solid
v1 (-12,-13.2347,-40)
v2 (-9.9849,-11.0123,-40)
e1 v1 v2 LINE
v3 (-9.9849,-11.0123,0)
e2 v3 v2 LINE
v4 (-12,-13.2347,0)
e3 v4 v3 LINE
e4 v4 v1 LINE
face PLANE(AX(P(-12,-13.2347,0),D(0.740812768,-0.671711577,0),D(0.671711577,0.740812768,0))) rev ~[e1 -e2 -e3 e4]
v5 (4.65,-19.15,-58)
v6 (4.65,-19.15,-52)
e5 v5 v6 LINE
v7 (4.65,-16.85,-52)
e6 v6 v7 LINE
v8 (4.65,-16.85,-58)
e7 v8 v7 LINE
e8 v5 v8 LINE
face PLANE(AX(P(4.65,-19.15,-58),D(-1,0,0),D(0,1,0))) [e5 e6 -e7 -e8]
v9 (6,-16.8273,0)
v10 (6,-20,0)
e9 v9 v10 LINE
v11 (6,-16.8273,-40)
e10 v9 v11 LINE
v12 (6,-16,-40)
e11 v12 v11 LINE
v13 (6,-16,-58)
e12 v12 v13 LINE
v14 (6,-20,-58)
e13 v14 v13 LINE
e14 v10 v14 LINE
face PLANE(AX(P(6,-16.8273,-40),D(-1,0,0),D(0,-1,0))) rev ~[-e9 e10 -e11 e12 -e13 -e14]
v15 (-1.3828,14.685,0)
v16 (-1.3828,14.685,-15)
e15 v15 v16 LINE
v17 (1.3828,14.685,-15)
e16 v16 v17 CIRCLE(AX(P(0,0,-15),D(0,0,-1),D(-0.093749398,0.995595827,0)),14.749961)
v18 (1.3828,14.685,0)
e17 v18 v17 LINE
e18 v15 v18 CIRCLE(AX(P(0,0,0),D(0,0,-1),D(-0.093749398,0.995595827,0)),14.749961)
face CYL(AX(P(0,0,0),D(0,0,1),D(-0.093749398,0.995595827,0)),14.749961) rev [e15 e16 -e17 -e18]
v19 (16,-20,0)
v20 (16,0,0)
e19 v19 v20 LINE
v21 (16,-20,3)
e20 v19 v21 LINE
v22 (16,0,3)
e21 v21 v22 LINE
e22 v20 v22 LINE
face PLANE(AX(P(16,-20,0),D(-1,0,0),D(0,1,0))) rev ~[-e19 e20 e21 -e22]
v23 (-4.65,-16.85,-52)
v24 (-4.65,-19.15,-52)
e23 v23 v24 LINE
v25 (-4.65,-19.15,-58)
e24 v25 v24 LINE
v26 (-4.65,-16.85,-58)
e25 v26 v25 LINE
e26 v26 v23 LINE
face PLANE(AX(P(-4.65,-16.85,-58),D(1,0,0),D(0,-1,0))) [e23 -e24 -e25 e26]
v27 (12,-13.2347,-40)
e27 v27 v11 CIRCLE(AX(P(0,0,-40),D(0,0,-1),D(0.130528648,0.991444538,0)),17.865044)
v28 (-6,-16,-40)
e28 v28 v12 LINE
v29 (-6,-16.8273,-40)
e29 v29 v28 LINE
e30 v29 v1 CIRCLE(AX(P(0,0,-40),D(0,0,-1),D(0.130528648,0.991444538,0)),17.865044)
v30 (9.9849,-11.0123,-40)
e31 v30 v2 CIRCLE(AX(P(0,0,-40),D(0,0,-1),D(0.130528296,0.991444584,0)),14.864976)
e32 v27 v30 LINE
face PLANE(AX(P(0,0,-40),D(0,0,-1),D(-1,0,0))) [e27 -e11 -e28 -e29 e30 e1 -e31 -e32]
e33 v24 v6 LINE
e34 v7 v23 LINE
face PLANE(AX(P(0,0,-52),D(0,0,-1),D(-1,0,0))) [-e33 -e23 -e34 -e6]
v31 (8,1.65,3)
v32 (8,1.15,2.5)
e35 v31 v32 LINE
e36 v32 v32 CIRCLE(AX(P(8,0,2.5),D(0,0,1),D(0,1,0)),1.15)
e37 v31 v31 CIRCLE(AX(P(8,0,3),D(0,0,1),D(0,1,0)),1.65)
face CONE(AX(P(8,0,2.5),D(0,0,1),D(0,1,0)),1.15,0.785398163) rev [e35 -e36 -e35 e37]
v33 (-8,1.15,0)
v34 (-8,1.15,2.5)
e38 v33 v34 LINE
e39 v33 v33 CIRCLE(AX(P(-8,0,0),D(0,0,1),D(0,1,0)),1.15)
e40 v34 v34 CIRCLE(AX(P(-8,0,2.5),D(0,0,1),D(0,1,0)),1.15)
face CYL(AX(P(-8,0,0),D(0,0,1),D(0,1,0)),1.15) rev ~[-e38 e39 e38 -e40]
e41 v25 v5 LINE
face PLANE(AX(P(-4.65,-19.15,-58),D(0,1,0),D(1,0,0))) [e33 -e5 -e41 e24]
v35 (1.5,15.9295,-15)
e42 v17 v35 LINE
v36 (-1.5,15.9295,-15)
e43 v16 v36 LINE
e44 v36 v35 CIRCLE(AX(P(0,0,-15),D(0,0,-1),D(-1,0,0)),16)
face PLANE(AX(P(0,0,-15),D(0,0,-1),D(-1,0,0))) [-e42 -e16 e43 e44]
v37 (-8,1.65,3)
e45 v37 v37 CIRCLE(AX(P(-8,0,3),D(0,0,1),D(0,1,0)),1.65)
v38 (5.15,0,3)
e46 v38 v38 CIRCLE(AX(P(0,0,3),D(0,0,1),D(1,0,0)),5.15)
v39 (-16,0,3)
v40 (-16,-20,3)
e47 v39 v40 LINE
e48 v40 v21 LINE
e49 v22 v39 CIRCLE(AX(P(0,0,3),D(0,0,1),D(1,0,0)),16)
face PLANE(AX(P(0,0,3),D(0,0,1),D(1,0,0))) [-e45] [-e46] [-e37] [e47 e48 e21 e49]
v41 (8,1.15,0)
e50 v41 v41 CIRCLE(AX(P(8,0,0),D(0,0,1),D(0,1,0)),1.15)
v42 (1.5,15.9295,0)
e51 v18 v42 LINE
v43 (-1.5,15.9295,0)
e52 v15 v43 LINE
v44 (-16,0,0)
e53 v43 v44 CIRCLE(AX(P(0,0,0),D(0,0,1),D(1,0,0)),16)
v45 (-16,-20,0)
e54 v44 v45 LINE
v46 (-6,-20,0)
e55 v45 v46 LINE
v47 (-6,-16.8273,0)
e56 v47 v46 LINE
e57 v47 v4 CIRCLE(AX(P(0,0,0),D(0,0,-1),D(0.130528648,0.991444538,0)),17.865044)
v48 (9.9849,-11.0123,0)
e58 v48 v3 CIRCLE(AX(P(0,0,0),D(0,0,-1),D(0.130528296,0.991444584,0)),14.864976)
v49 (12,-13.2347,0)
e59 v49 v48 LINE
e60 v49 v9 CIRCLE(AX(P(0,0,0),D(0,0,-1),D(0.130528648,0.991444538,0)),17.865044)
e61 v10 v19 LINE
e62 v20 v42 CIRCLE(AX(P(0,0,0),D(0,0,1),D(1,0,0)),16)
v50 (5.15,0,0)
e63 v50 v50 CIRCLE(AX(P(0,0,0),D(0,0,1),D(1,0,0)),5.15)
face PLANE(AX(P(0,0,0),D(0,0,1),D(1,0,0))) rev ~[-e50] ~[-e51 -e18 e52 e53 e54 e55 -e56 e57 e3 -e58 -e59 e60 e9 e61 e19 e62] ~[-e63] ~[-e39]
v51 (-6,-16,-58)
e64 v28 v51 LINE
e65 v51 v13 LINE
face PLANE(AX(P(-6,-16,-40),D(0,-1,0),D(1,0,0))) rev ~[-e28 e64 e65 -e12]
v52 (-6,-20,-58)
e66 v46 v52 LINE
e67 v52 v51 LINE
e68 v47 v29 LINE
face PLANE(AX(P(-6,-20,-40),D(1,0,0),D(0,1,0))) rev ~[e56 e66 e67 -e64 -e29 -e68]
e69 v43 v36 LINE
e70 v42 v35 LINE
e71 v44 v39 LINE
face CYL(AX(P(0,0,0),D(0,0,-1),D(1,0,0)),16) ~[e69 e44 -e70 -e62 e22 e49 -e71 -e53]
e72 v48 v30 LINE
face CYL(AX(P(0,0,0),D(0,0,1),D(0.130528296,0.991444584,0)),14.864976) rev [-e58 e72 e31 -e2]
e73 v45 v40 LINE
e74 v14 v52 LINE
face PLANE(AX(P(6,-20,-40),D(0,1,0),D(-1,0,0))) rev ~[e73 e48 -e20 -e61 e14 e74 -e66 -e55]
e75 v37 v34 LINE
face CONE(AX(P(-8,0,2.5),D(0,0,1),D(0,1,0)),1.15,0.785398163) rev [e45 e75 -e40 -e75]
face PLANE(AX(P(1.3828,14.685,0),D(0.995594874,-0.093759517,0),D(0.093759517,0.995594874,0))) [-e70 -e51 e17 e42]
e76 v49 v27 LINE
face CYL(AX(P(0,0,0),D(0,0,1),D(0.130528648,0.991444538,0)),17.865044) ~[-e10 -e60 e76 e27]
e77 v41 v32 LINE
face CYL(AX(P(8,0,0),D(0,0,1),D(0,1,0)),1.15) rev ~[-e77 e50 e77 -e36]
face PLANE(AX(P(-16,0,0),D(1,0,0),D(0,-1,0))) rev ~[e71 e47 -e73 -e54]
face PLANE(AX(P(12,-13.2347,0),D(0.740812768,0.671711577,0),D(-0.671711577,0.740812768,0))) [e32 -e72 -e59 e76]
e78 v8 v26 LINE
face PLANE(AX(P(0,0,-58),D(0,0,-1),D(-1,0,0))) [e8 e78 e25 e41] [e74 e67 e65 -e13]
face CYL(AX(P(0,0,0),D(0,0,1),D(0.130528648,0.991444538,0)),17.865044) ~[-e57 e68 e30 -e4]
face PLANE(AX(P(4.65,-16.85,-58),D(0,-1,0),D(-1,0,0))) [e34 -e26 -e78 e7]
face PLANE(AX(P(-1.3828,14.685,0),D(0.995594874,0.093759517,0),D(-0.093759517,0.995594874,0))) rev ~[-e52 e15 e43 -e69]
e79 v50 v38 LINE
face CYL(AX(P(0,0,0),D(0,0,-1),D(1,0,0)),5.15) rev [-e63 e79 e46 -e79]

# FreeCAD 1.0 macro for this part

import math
import FreeCAD as App
import Part
import Sketcher
from FreeCAD import Vector
Q = App.Units.Quantity


def edges_at(feature, points):
    """Names of the edges that pass closest to the given points."""
    edges = feature.Shape.Edges
    near = lambda p: min(range(len(edges)), key=lambda i: edges[i].distToShape(Part.Vertex(*p))[0])
    return sorted({f"Edge{near(p) + 1}" for p in points})


def add_polygon(sketch, points):
    """Adds a closed chain of lines whose ends are joined by coincident constraints."""
    first, n = sketch.GeometryCount, len(points)
    for a, b in zip(points, points[1:] + points[:1]):
        sketch.addGeometry(Part.LineSegment(App.Vector(*a, 0), App.Vector(*b, 0)), False)
    for i in range(n):
        sketch.addConstraint(Sketcher.Constraint("Coincident", first + i, 2, first + (i + 1) % n, 1))

doc = App.newDocument("Part")
body = doc.addObject("PartDesign::Body", "Body")

# Sketch on XY plane
sketch1 = body.newObject("Sketcher::SketchObject", "Sketch")
sketch1.AttachmentSupport = (doc.getObject("XY_Plane"), [""])
sketch1.MapMode = "FlatFace"
sketch1.addGeometry(Part.ArcOfCircle(Part.Circle(Vector(0, 0, 0), Vector(0, 0, 1), 16), math.radians(0), math.radians(180)), False)
sketch1.addGeometry(Part.LineSegment(Vector(-16, 0, 0), Vector(-16, -20, 0)), False)
sketch1.addGeometry(Part.LineSegment(Vector(-16, -20, 0), Vector(16, -20, 0)), False)
sketch1.addGeometry(Part.LineSegment(Vector(16, -20, 0), Vector(16, 0, 0)), False)
sketch1.addGeometry(Part.Circle(Vector(0, 0, 0), Vector(0, 0, 1), 5.15), False)
sketch1.addConstraint(Sketcher.Constraint("Tangent", 0, 2, 1, 1))
sketch1.addConstraint(Sketcher.Constraint("Coincident", 1, 2, 2, 1))
sketch1.addConstraint(Sketcher.Constraint("Coincident", 2, 2, 3, 1))
sketch1.addConstraint(Sketcher.Constraint("Tangent", 3, 2, 0, 1))
sketch1.addConstraint(Sketcher.Constraint("Vertical", 1))
sketch1.addConstraint(Sketcher.Constraint("Horizontal", 2))
sketch1.addConstraint(Sketcher.Constraint("Vertical", 3))
sketch1.addConstraint(Sketcher.Constraint("Coincident", 0, 3, -1, 1))
sketch1.addConstraint(Sketcher.Constraint("Coincident", 4, 3, -1, 1))
sketch1.addConstraint(Sketcher.Constraint("Radius", 0, 16.0))
sketch1.addConstraint(Sketcher.Constraint("Diameter", 4, 10.3))
sketch1.addConstraint(Sketcher.Constraint("DistanceY", 1, 2, 1, 1, 20.0))
pad1 = body.newObject("PartDesign::Pad", "Pad")
pad1.Profile = sketch1
pad1.Length = 3

# Sketch on XY plane
sketch2 = body.newObject("Sketcher::SketchObject", "Sketch001")
sketch2.AttachmentSupport = (doc.getObject("XY_Plane"), [""])
sketch2.MapMode = "FlatFace"
sketch2.addGeometry(Part.Circle(Vector(-8, 0, 0), Vector(0, 0, 1), 1.15), False)
sketch2.addGeometry(Part.Circle(Vector(8, 0, 0), Vector(0, 0, 1), 1.15), False)
sketch2.addConstraint(Sketcher.Constraint("Equal", 0, 1))
sketch2.addConstraint(Sketcher.Constraint("Symmetric", 0, 3, 1, 3, -1, 1))
sketch2.addConstraint(Sketcher.Constraint("PointOnObject", 0, 3, -1))
sketch2.addConstraint(Sketcher.Constraint("Diameter", 0, 2.3))
sketch2.addConstraint(Sketcher.Constraint("DistanceX", 0, 3, -1, 1, 8.0))
doc.recompute()
hole = body.newObject("PartDesign::Hole", "Hole")
hole.Profile = sketch2
hole.ThreadType = "None"
hole.Diameter = 2.3
hole.DepthType = "ThroughAll"
hole.Reversed = True

# Sketch on XY plane
sketch3 = body.newObject("Sketcher::SketchObject", "Sketch002")
sketch3.AttachmentSupport = (doc.getObject("XY_Plane"), [""])
sketch3.MapMode = "FlatFace"
sketch3.addGeometry(Part.ArcOfCircle(Part.Circle(Vector(0, 0, 0), Vector(0, 0, 1), 14.749961), math.radians(84.620656), math.radians(95.379344)), False)
sketch3.addGeometry(Part.LineSegment(Vector(-1.3828, 14.685, 0), Vector(-1.5, 15.9295, 0)), False)
sketch3.addGeometry(Part.ArcOfCircle(Part.Circle(Vector(0, 0, 0), Vector(0, 0, 1), 16), math.radians(84.62061), math.radians(95.37939)), False)
sketch3.addGeometry(Part.LineSegment(Vector(1.5, 15.9295, 0), Vector(1.3828, 14.685, 0)), False)
sketch3.addConstraint(Sketcher.Constraint("Coincident", 0, 2, 1, 1))
sketch3.addConstraint(Sketcher.Constraint("Coincident", 1, 2, 2, 2))
sketch3.addConstraint(Sketcher.Constraint("Coincident", 2, 1, 3, 1))
sketch3.addConstraint(Sketcher.Constraint("Coincident", 3, 2, 0, 1))
sketch3.addConstraint(Sketcher.Constraint("Coincident", 0, 3, -1, 1))
sketch3.addConstraint(Sketcher.Constraint("Coincident", 2, 3, -1, 1))
sketch3.addConstraint(Sketcher.Constraint("Horizontal", 1, 2, 2, 1))
sketch3.addConstraint(Sketcher.Constraint("Horizontal", 0, 2, 3, 2))
sketch3.addConstraint(Sketcher.Constraint("Radius", 2, 16.0))
sketch3.addConstraint(Sketcher.Constraint("DistanceX", 1, 2, 2, 1, 3.0))
sketch3.addConstraint(Sketcher.Constraint("Distance", 1, 1.25))
sketch3.addConstraint(Sketcher.Constraint("Angle", 1, Q("95.38 deg")))
pad2 = body.newObject("PartDesign::Pad", "Pad001")
pad2.Profile = sketch3
pad2.Length = 15
pad2.Reversed = True

# Sketch on XY plane
sketch4 = body.newObject("Sketcher::SketchObject", "Sketch003")
sketch4.AttachmentSupport = (doc.getObject("XY_Plane"), [""])
sketch4.MapMode = "FlatFace"
sketch4.addGeometry(Part.ArcOfCircle(Part.Circle(Vector(0, 0, 0), Vector(0, 0, 1), 14.864976), math.radians(-132.198733), math.radians(-47.801267)), False)
sketch4.addGeometry(Part.LineSegment(Vector(9.9849, -11.0123, 0), Vector(12, -13.2347, 0)), False)
sketch4.addGeometry(Part.ArcOfCircle(Part.Circle(Vector(0, 0, 0), Vector(0, 0, 1), 17.865044), math.radians(-70.375624), math.radians(-47.801172)), False)
sketch4.addGeometry(Part.LineSegment(Vector(6, -16.8273, 0), Vector(6, -20, 0)), False)
sketch4.addGeometry(Part.LineSegment(Vector(6, -20, 0), Vector(-6, -20, 0)), False)
sketch4.addGeometry(Part.LineSegment(Vector(-6, -20, 0), Vector(-6, -16.8273, 0)), False)
sketch4.addGeometry(Part.ArcOfCircle(Part.Circle(Vector(0, 0, 0), Vector(0, 0, 1), 17.865044), math.radians(-132.198828), math.radians(-109.624376)), False)
sketch4.addGeometry(Part.LineSegment(Vector(-12, -13.2347, 0), Vector(-9.9849, -11.0123, 0)), False)
sketch4.addConstraint(Sketcher.Constraint("Coincident", 0, 2, 1, 1))
sketch4.addConstraint(Sketcher.Constraint("Coincident", 1, 2, 2, 2))
sketch4.addConstraint(Sketcher.Constraint("Coincident", 2, 1, 3, 1))
sketch4.addConstraint(Sketcher.Constraint("Coincident", 3, 2, 4, 1))
sketch4.addConstraint(Sketcher.Constraint("Coincident", 4, 2, 5, 1))
sketch4.addConstraint(Sketcher.Constraint("Coincident", 5, 2, 6, 2))
sketch4.addConstraint(Sketcher.Constraint("Coincident", 6, 1, 7, 1))
sketch4.addConstraint(Sketcher.Constraint("Coincident", 7, 2, 0, 1))
sketch4.addConstraint(Sketcher.Constraint("Vertical", 3))
sketch4.addConstraint(Sketcher.Constraint("Horizontal", 4))
sketch4.addConstraint(Sketcher.Constraint("Vertical", 5))
sketch4.addConstraint(Sketcher.Constraint("Coincident", 0, 3, -1, 1))
sketch4.addConstraint(Sketcher.Constraint("Coincident", 2, 3, -1, 1))
sketch4.addConstraint(Sketcher.Constraint("Coincident", 6, 3, -1, 1))
sketch4.addConstraint(Sketcher.Constraint("Equal", 2, 6))
sketch4.addConstraint(Sketcher.Constraint("Horizontal", 2, 1, 5, 2))
sketch4.addConstraint(Sketcher.Constraint("Horizontal", 1, 2, 6, 1))
sketch4.addConstraint(Sketcher.Constraint("Horizontal", 0, 2, 7, 2))
sketch4.addConstraint(Sketcher.Constraint("DistanceX", 4, 2, 4, 1, 12.0))
sketch4.addConstraint(Sketcher.Constraint("Distance", 1, 3.0))
sketch4.addConstraint(Sketcher.Constraint("DistanceX", -1, 1, 1, 2, 12.0))
sketch4.addConstraint(Sketcher.Constraint("DistanceY", 3, 2, -1, 1, 20.0))
sketch4.addConstraint(Sketcher.Constraint("Angle", 1, Q("-47.8007 deg")))
sketch4.addConstraint(Sketcher.Constraint("Radius", 0, 14.865))
pad3 = body.newObject("PartDesign::Pad", "Pad002")
pad3.Profile = sketch4
pad3.Length = 40
pad3.Reversed = True
doc.recompute()

chamfer = body.newObject("PartDesign::Chamfer", "Chamfer")
chamfer.Base = (pad3, edges_at(pad3, [(-8, -1.15, 3), (8, -1.15, 3)]))
chamfer.Size = 0.5

# Sketch on XY plane
sketch5 = body.newObject("Sketcher::SketchObject", "Sketch004")
sketch5.AttachmentSupport = (doc.getObject("XY_Plane"), [""])
sketch5.MapMode = "FlatFace"
sketch5.AttachmentOffset = App.Placement(Vector(0, 0, -40), App.Rotation())
add_polygon(sketch5, [(6, -16), (6, -20), (-6, -20), (-6, -16)])  # lines 0-3
sketch5.addConstraint(Sketcher.Constraint("Vertical", 0))
sketch5.addConstraint(Sketcher.Constraint("Horizontal", 1))
sketch5.addConstraint(Sketcher.Constraint("Vertical", 2))
sketch5.addConstraint(Sketcher.Constraint("Horizontal", 3))
sketch5.addConstraint(Sketcher.Constraint("DistanceY", 0, 2, 0, 1, 4.0))
sketch5.addConstraint(Sketcher.Constraint("DistanceX", 1, 2, 1, 1, 12.0))
sketch5.addConstraint(Sketcher.Constraint("DistanceX", -1, 1, 0, 2, 6.0))
sketch5.addConstraint(Sketcher.Constraint("DistanceY", 0, 2, -1, 1, 20.0))
pad4 = body.newObject("PartDesign::Pad", "Pad003")
pad4.Profile = sketch5
pad4.Length = 18
pad4.Reversed = True

# Sketch on XY plane
sketch6 = body.newObject("Sketcher::SketchObject", "Sketch005")
sketch6.AttachmentSupport = (doc.getObject("XY_Plane"), [""])
sketch6.MapMode = "FlatFace"
sketch6.AttachmentOffset = App.Placement(Vector(0, 0, -58), App.Rotation())
add_polygon(sketch6, [(-4.65, -16.85), (4.65, -16.85), (4.65, -19.15), (-4.65, -19.15)])  # lines 0-3
sketch6.addConstraint(Sketcher.Constraint("Horizontal", 0))
sketch6.addConstraint(Sketcher.Constraint("Vertical", 1))
sketch6.addConstraint(Sketcher.Constraint("Horizontal", 2))
sketch6.addConstraint(Sketcher.Constraint("Vertical", 3))
sketch6.addConstraint(Sketcher.Constraint("DistanceX", 0, 1, 0, 2, 9.3))
sketch6.addConstraint(Sketcher.Constraint("DistanceY", 1, 2, 1, 1, 2.3))
sketch6.addConstraint(Sketcher.Constraint("DistanceX", -1, 1, 0, 2, 4.65))
sketch6.addConstraint(Sketcher.Constraint("DistanceY", 0, 2, -1, 1, 16.85))
pocket1 = body.newObject("PartDesign::Pocket", "Pocket")
pocket1.Profile = sketch6
pocket1.Length = 6
pocket1.Reversed = True

doc.recompute()
